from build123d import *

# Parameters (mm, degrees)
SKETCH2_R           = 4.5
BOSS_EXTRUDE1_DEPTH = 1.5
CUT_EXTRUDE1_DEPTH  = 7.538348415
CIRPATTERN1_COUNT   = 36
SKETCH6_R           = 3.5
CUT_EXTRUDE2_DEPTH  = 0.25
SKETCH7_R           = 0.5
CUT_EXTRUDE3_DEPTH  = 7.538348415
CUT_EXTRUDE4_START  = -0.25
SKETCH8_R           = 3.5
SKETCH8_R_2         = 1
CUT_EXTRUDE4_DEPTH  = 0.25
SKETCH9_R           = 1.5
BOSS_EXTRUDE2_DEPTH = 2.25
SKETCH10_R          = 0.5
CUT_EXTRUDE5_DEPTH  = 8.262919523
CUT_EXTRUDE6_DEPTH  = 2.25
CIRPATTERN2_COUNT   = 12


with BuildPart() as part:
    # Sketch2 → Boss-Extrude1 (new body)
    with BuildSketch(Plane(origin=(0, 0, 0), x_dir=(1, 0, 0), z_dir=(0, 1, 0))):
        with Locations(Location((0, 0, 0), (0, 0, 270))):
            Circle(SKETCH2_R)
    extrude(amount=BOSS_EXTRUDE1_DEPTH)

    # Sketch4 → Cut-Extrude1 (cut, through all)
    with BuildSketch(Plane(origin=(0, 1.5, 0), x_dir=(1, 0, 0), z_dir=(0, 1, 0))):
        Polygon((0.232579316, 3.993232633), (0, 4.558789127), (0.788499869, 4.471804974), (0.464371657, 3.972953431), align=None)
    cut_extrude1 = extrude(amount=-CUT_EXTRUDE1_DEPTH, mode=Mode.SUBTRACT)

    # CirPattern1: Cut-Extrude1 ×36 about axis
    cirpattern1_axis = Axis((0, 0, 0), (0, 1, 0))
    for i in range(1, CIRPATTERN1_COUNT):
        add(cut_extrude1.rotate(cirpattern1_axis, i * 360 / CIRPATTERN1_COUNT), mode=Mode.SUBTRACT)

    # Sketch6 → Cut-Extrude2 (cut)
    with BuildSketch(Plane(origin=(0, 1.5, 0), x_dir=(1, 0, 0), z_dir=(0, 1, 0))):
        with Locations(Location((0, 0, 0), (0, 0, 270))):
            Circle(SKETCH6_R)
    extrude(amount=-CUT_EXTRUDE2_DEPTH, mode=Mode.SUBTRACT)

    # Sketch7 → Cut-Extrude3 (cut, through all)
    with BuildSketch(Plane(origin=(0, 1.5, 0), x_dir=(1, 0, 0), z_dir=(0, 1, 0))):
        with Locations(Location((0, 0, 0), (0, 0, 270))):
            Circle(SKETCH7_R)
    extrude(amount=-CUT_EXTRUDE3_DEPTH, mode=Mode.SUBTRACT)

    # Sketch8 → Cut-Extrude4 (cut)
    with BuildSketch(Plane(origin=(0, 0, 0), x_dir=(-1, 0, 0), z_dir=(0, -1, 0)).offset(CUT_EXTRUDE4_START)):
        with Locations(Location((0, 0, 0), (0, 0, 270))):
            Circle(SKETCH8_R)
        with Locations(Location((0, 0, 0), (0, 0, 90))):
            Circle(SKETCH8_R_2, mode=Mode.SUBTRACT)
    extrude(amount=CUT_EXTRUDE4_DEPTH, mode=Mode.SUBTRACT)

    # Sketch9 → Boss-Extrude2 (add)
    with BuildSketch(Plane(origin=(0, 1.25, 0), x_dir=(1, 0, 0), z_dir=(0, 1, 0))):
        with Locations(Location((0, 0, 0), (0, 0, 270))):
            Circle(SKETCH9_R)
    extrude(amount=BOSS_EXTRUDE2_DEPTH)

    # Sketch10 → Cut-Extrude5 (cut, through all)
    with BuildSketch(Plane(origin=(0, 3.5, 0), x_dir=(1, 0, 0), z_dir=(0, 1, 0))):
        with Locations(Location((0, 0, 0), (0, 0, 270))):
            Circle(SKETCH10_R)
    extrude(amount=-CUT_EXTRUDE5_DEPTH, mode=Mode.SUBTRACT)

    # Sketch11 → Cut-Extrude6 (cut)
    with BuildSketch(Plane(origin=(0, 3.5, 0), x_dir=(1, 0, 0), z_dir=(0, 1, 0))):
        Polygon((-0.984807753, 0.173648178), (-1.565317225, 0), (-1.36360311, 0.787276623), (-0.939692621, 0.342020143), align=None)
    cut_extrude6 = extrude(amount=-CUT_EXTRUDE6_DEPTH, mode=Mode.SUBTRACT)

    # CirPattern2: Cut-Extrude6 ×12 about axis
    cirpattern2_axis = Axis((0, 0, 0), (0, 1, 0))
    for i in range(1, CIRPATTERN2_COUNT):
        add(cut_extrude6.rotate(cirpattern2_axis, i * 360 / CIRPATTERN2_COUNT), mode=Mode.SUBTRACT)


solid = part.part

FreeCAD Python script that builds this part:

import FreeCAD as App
import Part
import Sketcher
from FreeCAD import Vector
Q = App.Units.Quantity


def add_polygon(sketch, points):
    """Adds a closed chain of lines whose ends are joined by coincident constraints."""
    first, n = sketch.GeometryCount, len(points)
    for a, b in zip(points, points[1:] + points[:1]):
        sketch.addGeometry(Part.LineSegment(App.Vector(*a, 0), App.Vector(*b, 0)), False)
    for i in range(n):
        sketch.addConstraint(Sketcher.Constraint("Coincident", first + i, 2, first + (i + 1) % n, 1))

doc = App.newDocument("Part")
body = doc.addObject("PartDesign::Body", "Body")

sketch1 = body.newObject("Sketcher::SketchObject", "Sketch")
sketch1.AttachmentSupport = (doc.getObject("XZ_Plane"), [""])
sketch1.MapMode = "FlatFace"
sketch1.addGeometry(Part.Circle(Vector(0, 0, 0), Vector(0, 0, 1), 4.5), False)
sketch1.addConstraint([
    Sketcher.Constraint("Coincident", 0, 3, -1, 1),
    Sketcher.Constraint("Diameter", 0, Q("9 mm")),
])
pad1 = body.newObject("PartDesign::Pad", "Pad")
pad1.Profile = sketch1
pad1.Length = 1.5
pad1.Reversed = True

sketch2 = body.newObject("Sketcher::SketchObject", "Sketch001")
sketch2.AttachmentSupport = (doc.getObject("XZ_Plane"), [""])
sketch2.MapMode = "FlatFace"
sketch2.AttachmentOffset = App.Placement(Vector(0, 0, -1.5), App.Rotation())
add_polygon(sketch2, [(0, -4.56), (0.23, -3.99), (0.46, -3.97), (0.79, -4.47)])
sketch2.addConstraint([
    Sketcher.Constraint("PointOnObject", 3, 2, -2),
    Sketcher.Constraint("Angle", 1, Q("5 deg")),
    Sketcher.Constraint("DistanceX", -1, 1, 2, 2, Q("0.7885 mm")),
    Sketcher.Constraint("DistanceX", -1, 1, 0, 2, Q("0.232579 mm")),
    Sketcher.Constraint("DistanceX", -1, 1, 1, 2, Q("0.464372 mm")),
    Sketcher.Constraint("DistanceY", 3, 2, -1, 1, Q("4.558789 mm")),
    Sketcher.Constraint("DistanceY", 2, 2, 1, 2, Q("0.498852 mm")),
    Sketcher.Constraint("Distance", 0, Q("0.611512 mm")),
])
pocket1 = body.newObject("PartDesign::Pocket", "Pocket")
pocket1.Profile = sketch2
pocket1.Type = "ThroughAll"
pocket1.Reversed = True
doc.recompute()

polarpattern = body.newObject("PartDesign::PolarPattern", "PolarPattern")
polarpattern.Originals = [pocket1]
polarpattern.Axis = (doc.getObject("Y_Axis"), [""])
polarpattern.Angle = 360
polarpattern.Occurrences = 36
body.Tip = polarpattern

sketch3 = body.newObject("Sketcher::SketchObject", "Sketch002")
sketch3.AttachmentSupport = (doc.getObject("XZ_Plane"), [""])
sketch3.MapMode = "FlatFace"
sketch3.AttachmentOffset = App.Placement(Vector(0, 0, -1.5), App.Rotation())
sketch3.addGeometry(Part.Circle(Vector(0, 0, 0), Vector(0, 0, 1), 3.5), False)
sketch3.addConstraint([
    Sketcher.Constraint("Coincident", 0, 3, -1, 1),
    Sketcher.Constraint("Diameter", 0, Q("7 mm")),
])
pocket2 = body.newObject("PartDesign::Pocket", "Pocket001")
pocket2.Profile = sketch3
pocket2.Length = 0.25
pocket2.Reversed = True

sketch4 = body.newObject("Sketcher::SketchObject", "Sketch003")
sketch4.AttachmentSupport = (doc.getObject("XZ_Plane"), [""])
sketch4.MapMode = "FlatFace"
sketch4.AttachmentOffset = App.Placement(Vector(0, 0, -1.5), App.Rotation())
sketch4.addGeometry(Part.Circle(Vector(0, 0, 0), Vector(0, 0, 1), 0.5), False)
sketch4.addConstraint([
    Sketcher.Constraint("Coincident", 0, 3, -1, 1),
    Sketcher.Constraint("Diameter", 0, Q("1 mm")),
])
pocket3 = body.newObject("PartDesign::Pocket", "Pocket002")
pocket3.Profile = sketch4
pocket3.Type = "ThroughAll"
pocket3.Reversed = True

sketch5 = body.newObject("Sketcher::SketchObject", "Sketch004")
sketch5.AttachmentSupport = (doc.getObject("XZ_Plane"), [""])
sketch5.MapMode = "FlatFace"
sketch5.AttachmentOffset = App.Placement(Vector(0, 0, -0.25), App.Rotation())
sketch5.addGeometry([
    Part.Circle(Vector(0, 0, 0), Vector(0, 0, 1), 3.5),
    Part.Circle(Vector(0, 0, 0), Vector(0, 0, 1), 1),
], False)
sketch5.addConstraint([
    Sketcher.Constraint("Coincident", 0, 3, -1, 1),
    Sketcher.Constraint("Coincident", 1, 3, -1, 1),
    Sketcher.Constraint("Diameter", 0, Q("7 mm")),
    Sketcher.Constraint("Diameter", 1, Q("2 mm")),
])
pocket4 = body.newObject("PartDesign::Pocket", "Pocket003")
pocket4.Profile = sketch5
pocket4.Length = 0.25
pocket4.Reversed = True

sketch6 = body.newObject("Sketcher::SketchObject", "Sketch005")
sketch6.AttachmentSupport = (doc.getObject("XZ_Plane"), [""])
sketch6.MapMode = "FlatFace"
sketch6.AttachmentOffset = App.Placement(Vector(0, 0, -1.25), App.Rotation())
sketch6.addGeometry(Part.Circle(Vector(0, 0, 0), Vector(0, 0, 1), 1.5), False)
sketch6.addConstraint([
    Sketcher.Constraint("Coincident", 0, 3, -1, 1),
    Sketcher.Constraint("Diameter", 0, Q("3 mm")),
])
pad2 = body.newObject("PartDesign::Pad", "Pad001")
pad2.Profile = sketch6
pad2.Length = 2.25
pad2.Reversed = True

sketch7 = body.newObject("Sketcher::SketchObject", "Sketch006")
sketch7.AttachmentSupport = (doc.getObject("XZ_Plane"), [""])
sketch7.MapMode = "FlatFace"
sketch7.AttachmentOffset = App.Placement(Vector(0, 0, -3.5), App.Rotation())
sketch7.addGeometry(Part.Circle(Vector(0, 0, 0), Vector(0, 0, 1), 0.5), False)
sketch7.addConstraint([
    Sketcher.Constraint("Coincident", 0, 3, -1, 1),
    Sketcher.Constraint("Diameter", 0, Q("1 mm")),
])
pocket5 = body.newObject("PartDesign::Pocket", "Pocket004")
pocket5.Profile = sketch7
pocket5.Type = "ThroughAll"
pocket5.Reversed = True

sketch8 = body.newObject("Sketcher::SketchObject", "Sketch007")
sketch8.AttachmentSupport = (doc.getObject("XZ_Plane"), [""])
sketch8.MapMode = "FlatFace"
sketch8.AttachmentOffset = App.Placement(Vector(0, 0, -3.5), App.Rotation())
add_polygon(sketch8, [(-1.57, 0), (-0.98, -0.17), (-0.94, -0.34), (-1.36, -0.79)])
sketch8.addConstraint([
    Sketcher.Constraint("PointOnObject", 3, 2, -1),
    Sketcher.Constraint("Angle", 1, Q("-75 deg")),
    Sketcher.Constraint("Distance", 1, Q("0.174311 mm")),
    Sketcher.Constraint("Distance", 2, Q("0.614779 mm")),
    Sketcher.Constraint("DistanceY", 0, 2, -1, 1, Q("0.173648 mm")),
    Sketcher.Constraint("DistanceX", 2, 2, 1, 2, Q("0.42391 mm")),
    Sketcher.Constraint("DistanceX", 3, 2, 0, 2, Q("0.580509 mm")),
    Sketcher.Constraint("DistanceX", 0, 2, -1, 1, Q("0.984808 mm")),
])
pocket6 = body.newObject("PartDesign::Pocket", "Pocket005")
pocket6.Profile = sketch8
pocket6.Length = 2.25
pocket6.Reversed = True
doc.recompute()

polarpattern2 = body.newObject("PartDesign::PolarPattern", "PolarPattern001")
polarpattern2.Originals = [pocket6]
polarpattern2.Axis = (doc.getObject("Y_Axis"), [""])
polarpattern2.Angle = 360
polarpattern2.Occurrences = 12
body.Tip = polarpattern2

doc.recompute()
